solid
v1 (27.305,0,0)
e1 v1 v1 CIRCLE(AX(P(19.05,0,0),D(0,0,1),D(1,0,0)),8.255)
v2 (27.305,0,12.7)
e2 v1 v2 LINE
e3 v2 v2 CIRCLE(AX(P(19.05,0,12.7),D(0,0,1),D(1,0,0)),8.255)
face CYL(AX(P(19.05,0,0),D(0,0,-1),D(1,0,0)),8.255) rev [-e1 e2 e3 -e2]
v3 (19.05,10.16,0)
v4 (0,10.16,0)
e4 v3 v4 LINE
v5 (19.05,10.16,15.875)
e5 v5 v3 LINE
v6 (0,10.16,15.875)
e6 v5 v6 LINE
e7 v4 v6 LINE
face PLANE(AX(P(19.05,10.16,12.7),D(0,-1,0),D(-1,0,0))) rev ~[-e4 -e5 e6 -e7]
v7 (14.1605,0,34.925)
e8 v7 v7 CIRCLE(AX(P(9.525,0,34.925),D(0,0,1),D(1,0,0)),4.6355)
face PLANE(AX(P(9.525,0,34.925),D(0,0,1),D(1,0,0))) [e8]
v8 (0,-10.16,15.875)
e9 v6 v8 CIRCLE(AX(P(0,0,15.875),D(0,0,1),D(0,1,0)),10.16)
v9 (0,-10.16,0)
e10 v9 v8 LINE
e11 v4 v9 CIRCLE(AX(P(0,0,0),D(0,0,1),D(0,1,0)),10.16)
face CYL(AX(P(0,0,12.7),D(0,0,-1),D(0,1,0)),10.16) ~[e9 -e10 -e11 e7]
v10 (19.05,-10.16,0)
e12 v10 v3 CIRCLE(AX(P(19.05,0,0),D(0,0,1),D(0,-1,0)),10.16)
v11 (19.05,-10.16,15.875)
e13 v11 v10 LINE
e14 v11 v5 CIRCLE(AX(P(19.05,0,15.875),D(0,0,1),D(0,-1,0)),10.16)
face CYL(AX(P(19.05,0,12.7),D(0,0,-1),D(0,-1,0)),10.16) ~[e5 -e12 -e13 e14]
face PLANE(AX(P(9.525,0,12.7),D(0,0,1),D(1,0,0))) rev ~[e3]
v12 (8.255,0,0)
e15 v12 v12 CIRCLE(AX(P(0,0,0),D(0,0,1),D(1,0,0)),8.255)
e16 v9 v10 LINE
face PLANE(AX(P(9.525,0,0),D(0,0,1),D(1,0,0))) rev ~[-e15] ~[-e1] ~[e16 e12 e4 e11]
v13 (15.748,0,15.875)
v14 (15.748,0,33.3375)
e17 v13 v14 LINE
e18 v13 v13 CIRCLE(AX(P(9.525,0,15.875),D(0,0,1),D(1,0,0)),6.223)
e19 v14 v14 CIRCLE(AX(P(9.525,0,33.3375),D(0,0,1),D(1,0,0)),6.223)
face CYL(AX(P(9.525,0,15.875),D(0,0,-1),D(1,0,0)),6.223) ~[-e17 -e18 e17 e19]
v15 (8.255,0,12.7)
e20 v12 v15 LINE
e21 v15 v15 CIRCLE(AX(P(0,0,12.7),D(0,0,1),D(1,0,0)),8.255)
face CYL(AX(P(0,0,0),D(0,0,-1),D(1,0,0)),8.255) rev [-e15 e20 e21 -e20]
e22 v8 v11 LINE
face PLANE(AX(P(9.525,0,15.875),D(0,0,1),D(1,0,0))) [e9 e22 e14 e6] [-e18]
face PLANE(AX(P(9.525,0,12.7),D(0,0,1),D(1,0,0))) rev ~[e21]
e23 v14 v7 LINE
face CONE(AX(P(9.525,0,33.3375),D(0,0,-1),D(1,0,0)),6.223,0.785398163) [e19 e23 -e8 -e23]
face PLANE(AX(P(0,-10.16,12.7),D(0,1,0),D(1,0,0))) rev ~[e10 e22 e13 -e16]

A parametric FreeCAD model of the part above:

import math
import FreeCAD as App
import Part
import Sketcher
from FreeCAD import Vector
Q = App.Units.Quantity


def edges_at(feature, points):
    """Names of the edges that pass closest to the given points."""
    edges = feature.Shape.Edges
    near = lambda p: min(range(len(edges)), key=lambda i: edges[i].distToShape(Part.Vertex(*p))[0])
    return sorted({f"Edge{near(p) + 1}" for p in points})

doc = App.newDocument("Part")
body = doc.addObject("PartDesign::Body", "Body")

# Sketch on XY plane
sketch1 = doc.addObject("Sketcher::SketchObject", "Sketch")
body.addObject(sketch1)
sketch1.AttachmentSupport = (doc.XY_Plane, [""])
sketch1.MapMode = "FlatFace"
sketch1.addGeometry(Part.LineSegment(Vector(19, 10, 0), Vector(0, 10, 0)), False)
sketch1.addGeometry(Part.ArcOfCircle(Part.Circle(Vector(0, 0, 0), Vector(0, 0, 1), 10), math.radians(90), math.radians(270)), False)
sketch1.addGeometry(Part.LineSegment(Vector(0, -10, 0), Vector(19, -10, 0)), False)
sketch1.addGeometry(Part.ArcOfCircle(Part.Circle(Vector(19, 0, 0), Vector(0, 0, 1), 10), math.radians(-90), math.radians(90)), False)
sketch1.addGeometry(Part.Circle(Vector(0, 0, 0), Vector(0, 0, 1), 8), False)
sketch1.addGeometry(Part.Circle(Vector(19, 0, 0), Vector(0, 0, 1), 8), False)
sketch1.addConstraint(Sketcher.Constraint("Tangent", 0, 2, 1, 1))
sketch1.addConstraint(Sketcher.Constraint("Tangent", 1, 2, 2, 1))
sketch1.addConstraint(Sketcher.Constraint("Tangent", 2, 2, 3, 1))
sketch1.addConstraint(Sketcher.Constraint("Tangent", 3, 2, 0, 1))
sketch1.addConstraint(Sketcher.Constraint("Horizontal", 0))
sketch1.addConstraint(Sketcher.Constraint("Horizontal", 2))
sketch1.addConstraint(Sketcher.Constraint("Coincident", 1, 3, -1, 1))
sketch1.addConstraint(Sketcher.Constraint("Coincident", 4, 3, -1, 1))
sketch1.addConstraint(Sketcher.Constraint("Coincident", 5, 3, 3, 3))
sketch1.addConstraint(Sketcher.Constraint("Equal", 4, 5))
sketch1.addConstraint(Sketcher.Constraint("Radius", 1, Q("0.4 in")))
sketch1.addConstraint(Sketcher.Constraint("Diameter", 4, Q("0.65 in")))
sketch1.addConstraint(Sketcher.Constraint("DistanceX", 0, 2, 0, 1, Q("0.75 in")))
pad1 = doc.addObject("PartDesign::Pad", "Pad")
body.addObject(pad1)
pad1.Profile = sketch1
pad1.Length = Q("0.5 in")

# Sketch on XY plane
sketch2 = doc.addObject("Sketcher::SketchObject", "Sketch001")
body.addObject(sketch2)
sketch2.AttachmentSupport = (doc.XY_Plane, [""])
sketch2.MapMode = "FlatFace"
sketch2.AttachmentOffset = App.Placement(Vector(0, 0, 0.5 * 25.4), App.Rotation())
sketch2.addGeometry(Part.LineSegment(Vector(19, 10, 0), Vector(0, 10, 0)), False)
sketch2.addGeometry(Part.ArcOfCircle(Part.Circle(Vector(0, 0, 0), Vector(0, 0, 1), 10), math.radians(90), math.radians(270)), False)
sketch2.addGeometry(Part.LineSegment(Vector(0, -10, 0), Vector(19, -10, 0)), False)
sketch2.addGeometry(Part.ArcOfCircle(Part.Circle(Vector(19, 0, 0), Vector(0, 0, 1), 10), math.radians(-90), math.radians(90)), False)
sketch2.addConstraint(Sketcher.Constraint("Tangent", 0, 2, 1, 1))
sketch2.addConstraint(Sketcher.Constraint("Tangent", 1, 2, 2, 1))
sketch2.addConstraint(Sketcher.Constraint("Tangent", 2, 2, 3, 1))
sketch2.addConstraint(Sketcher.Constraint("Tangent", 3, 2, 0, 1))
sketch2.addConstraint(Sketcher.Constraint("Horizontal", 0))
sketch2.addConstraint(Sketcher.Constraint("Horizontal", 2))
sketch2.addConstraint(Sketcher.Constraint("Coincident", 1, 3, -1, 1))
sketch2.addConstraint(Sketcher.Constraint("Radius", 1, Q("0.4 in")))
sketch2.addConstraint(Sketcher.Constraint("DistanceX", 0, 2, 0, 1, Q("0.75 in")))
pad2 = doc.addObject("PartDesign::Pad", "Pad001")
body.addObject(pad2)
pad2.Profile = sketch2
pad2.Length = Q("0.125 in")

# Sketch on XY plane
sketch3 = doc.addObject("Sketcher::SketchObject", "Sketch002")
body.addObject(sketch3)
sketch3.AttachmentSupport = (doc.XY_Plane, [""])
sketch3.MapMode = "FlatFace"
sketch3.AttachmentOffset = App.Placement(Vector(0, 0, 0.625 * 25.4), App.Rotation())
sketch3.addGeometry(Part.Circle(Vector(10, 0, 0), Vector(0, 0, 1), 6), False)
sketch3.addConstraint(Sketcher.Constraint("PointOnObject", 0, 3, -1))
sketch3.addConstraint(Sketcher.Constraint("Diameter", 0, Q("0.49 in")))
sketch3.addConstraint(Sketcher.Constraint("DistanceX", -1, 1, 0, 3, Q("0.375 in")))
pad3 = doc.addObject("PartDesign::Pad", "Pad002")
body.addObject(pad3)
pad3.Profile = sketch3
pad3.Length = Q("0.75 in")
doc.recompute()

chamfer = doc.addObject("PartDesign::Chamfer", "Chamfer")
body.addObject(chamfer)
chamfer.Base = (pad3, edges_at(pad3, [(3.302, 0, 34.925)]))
chamfer.Size = Q("0.0625 in")

doc.recompute()
